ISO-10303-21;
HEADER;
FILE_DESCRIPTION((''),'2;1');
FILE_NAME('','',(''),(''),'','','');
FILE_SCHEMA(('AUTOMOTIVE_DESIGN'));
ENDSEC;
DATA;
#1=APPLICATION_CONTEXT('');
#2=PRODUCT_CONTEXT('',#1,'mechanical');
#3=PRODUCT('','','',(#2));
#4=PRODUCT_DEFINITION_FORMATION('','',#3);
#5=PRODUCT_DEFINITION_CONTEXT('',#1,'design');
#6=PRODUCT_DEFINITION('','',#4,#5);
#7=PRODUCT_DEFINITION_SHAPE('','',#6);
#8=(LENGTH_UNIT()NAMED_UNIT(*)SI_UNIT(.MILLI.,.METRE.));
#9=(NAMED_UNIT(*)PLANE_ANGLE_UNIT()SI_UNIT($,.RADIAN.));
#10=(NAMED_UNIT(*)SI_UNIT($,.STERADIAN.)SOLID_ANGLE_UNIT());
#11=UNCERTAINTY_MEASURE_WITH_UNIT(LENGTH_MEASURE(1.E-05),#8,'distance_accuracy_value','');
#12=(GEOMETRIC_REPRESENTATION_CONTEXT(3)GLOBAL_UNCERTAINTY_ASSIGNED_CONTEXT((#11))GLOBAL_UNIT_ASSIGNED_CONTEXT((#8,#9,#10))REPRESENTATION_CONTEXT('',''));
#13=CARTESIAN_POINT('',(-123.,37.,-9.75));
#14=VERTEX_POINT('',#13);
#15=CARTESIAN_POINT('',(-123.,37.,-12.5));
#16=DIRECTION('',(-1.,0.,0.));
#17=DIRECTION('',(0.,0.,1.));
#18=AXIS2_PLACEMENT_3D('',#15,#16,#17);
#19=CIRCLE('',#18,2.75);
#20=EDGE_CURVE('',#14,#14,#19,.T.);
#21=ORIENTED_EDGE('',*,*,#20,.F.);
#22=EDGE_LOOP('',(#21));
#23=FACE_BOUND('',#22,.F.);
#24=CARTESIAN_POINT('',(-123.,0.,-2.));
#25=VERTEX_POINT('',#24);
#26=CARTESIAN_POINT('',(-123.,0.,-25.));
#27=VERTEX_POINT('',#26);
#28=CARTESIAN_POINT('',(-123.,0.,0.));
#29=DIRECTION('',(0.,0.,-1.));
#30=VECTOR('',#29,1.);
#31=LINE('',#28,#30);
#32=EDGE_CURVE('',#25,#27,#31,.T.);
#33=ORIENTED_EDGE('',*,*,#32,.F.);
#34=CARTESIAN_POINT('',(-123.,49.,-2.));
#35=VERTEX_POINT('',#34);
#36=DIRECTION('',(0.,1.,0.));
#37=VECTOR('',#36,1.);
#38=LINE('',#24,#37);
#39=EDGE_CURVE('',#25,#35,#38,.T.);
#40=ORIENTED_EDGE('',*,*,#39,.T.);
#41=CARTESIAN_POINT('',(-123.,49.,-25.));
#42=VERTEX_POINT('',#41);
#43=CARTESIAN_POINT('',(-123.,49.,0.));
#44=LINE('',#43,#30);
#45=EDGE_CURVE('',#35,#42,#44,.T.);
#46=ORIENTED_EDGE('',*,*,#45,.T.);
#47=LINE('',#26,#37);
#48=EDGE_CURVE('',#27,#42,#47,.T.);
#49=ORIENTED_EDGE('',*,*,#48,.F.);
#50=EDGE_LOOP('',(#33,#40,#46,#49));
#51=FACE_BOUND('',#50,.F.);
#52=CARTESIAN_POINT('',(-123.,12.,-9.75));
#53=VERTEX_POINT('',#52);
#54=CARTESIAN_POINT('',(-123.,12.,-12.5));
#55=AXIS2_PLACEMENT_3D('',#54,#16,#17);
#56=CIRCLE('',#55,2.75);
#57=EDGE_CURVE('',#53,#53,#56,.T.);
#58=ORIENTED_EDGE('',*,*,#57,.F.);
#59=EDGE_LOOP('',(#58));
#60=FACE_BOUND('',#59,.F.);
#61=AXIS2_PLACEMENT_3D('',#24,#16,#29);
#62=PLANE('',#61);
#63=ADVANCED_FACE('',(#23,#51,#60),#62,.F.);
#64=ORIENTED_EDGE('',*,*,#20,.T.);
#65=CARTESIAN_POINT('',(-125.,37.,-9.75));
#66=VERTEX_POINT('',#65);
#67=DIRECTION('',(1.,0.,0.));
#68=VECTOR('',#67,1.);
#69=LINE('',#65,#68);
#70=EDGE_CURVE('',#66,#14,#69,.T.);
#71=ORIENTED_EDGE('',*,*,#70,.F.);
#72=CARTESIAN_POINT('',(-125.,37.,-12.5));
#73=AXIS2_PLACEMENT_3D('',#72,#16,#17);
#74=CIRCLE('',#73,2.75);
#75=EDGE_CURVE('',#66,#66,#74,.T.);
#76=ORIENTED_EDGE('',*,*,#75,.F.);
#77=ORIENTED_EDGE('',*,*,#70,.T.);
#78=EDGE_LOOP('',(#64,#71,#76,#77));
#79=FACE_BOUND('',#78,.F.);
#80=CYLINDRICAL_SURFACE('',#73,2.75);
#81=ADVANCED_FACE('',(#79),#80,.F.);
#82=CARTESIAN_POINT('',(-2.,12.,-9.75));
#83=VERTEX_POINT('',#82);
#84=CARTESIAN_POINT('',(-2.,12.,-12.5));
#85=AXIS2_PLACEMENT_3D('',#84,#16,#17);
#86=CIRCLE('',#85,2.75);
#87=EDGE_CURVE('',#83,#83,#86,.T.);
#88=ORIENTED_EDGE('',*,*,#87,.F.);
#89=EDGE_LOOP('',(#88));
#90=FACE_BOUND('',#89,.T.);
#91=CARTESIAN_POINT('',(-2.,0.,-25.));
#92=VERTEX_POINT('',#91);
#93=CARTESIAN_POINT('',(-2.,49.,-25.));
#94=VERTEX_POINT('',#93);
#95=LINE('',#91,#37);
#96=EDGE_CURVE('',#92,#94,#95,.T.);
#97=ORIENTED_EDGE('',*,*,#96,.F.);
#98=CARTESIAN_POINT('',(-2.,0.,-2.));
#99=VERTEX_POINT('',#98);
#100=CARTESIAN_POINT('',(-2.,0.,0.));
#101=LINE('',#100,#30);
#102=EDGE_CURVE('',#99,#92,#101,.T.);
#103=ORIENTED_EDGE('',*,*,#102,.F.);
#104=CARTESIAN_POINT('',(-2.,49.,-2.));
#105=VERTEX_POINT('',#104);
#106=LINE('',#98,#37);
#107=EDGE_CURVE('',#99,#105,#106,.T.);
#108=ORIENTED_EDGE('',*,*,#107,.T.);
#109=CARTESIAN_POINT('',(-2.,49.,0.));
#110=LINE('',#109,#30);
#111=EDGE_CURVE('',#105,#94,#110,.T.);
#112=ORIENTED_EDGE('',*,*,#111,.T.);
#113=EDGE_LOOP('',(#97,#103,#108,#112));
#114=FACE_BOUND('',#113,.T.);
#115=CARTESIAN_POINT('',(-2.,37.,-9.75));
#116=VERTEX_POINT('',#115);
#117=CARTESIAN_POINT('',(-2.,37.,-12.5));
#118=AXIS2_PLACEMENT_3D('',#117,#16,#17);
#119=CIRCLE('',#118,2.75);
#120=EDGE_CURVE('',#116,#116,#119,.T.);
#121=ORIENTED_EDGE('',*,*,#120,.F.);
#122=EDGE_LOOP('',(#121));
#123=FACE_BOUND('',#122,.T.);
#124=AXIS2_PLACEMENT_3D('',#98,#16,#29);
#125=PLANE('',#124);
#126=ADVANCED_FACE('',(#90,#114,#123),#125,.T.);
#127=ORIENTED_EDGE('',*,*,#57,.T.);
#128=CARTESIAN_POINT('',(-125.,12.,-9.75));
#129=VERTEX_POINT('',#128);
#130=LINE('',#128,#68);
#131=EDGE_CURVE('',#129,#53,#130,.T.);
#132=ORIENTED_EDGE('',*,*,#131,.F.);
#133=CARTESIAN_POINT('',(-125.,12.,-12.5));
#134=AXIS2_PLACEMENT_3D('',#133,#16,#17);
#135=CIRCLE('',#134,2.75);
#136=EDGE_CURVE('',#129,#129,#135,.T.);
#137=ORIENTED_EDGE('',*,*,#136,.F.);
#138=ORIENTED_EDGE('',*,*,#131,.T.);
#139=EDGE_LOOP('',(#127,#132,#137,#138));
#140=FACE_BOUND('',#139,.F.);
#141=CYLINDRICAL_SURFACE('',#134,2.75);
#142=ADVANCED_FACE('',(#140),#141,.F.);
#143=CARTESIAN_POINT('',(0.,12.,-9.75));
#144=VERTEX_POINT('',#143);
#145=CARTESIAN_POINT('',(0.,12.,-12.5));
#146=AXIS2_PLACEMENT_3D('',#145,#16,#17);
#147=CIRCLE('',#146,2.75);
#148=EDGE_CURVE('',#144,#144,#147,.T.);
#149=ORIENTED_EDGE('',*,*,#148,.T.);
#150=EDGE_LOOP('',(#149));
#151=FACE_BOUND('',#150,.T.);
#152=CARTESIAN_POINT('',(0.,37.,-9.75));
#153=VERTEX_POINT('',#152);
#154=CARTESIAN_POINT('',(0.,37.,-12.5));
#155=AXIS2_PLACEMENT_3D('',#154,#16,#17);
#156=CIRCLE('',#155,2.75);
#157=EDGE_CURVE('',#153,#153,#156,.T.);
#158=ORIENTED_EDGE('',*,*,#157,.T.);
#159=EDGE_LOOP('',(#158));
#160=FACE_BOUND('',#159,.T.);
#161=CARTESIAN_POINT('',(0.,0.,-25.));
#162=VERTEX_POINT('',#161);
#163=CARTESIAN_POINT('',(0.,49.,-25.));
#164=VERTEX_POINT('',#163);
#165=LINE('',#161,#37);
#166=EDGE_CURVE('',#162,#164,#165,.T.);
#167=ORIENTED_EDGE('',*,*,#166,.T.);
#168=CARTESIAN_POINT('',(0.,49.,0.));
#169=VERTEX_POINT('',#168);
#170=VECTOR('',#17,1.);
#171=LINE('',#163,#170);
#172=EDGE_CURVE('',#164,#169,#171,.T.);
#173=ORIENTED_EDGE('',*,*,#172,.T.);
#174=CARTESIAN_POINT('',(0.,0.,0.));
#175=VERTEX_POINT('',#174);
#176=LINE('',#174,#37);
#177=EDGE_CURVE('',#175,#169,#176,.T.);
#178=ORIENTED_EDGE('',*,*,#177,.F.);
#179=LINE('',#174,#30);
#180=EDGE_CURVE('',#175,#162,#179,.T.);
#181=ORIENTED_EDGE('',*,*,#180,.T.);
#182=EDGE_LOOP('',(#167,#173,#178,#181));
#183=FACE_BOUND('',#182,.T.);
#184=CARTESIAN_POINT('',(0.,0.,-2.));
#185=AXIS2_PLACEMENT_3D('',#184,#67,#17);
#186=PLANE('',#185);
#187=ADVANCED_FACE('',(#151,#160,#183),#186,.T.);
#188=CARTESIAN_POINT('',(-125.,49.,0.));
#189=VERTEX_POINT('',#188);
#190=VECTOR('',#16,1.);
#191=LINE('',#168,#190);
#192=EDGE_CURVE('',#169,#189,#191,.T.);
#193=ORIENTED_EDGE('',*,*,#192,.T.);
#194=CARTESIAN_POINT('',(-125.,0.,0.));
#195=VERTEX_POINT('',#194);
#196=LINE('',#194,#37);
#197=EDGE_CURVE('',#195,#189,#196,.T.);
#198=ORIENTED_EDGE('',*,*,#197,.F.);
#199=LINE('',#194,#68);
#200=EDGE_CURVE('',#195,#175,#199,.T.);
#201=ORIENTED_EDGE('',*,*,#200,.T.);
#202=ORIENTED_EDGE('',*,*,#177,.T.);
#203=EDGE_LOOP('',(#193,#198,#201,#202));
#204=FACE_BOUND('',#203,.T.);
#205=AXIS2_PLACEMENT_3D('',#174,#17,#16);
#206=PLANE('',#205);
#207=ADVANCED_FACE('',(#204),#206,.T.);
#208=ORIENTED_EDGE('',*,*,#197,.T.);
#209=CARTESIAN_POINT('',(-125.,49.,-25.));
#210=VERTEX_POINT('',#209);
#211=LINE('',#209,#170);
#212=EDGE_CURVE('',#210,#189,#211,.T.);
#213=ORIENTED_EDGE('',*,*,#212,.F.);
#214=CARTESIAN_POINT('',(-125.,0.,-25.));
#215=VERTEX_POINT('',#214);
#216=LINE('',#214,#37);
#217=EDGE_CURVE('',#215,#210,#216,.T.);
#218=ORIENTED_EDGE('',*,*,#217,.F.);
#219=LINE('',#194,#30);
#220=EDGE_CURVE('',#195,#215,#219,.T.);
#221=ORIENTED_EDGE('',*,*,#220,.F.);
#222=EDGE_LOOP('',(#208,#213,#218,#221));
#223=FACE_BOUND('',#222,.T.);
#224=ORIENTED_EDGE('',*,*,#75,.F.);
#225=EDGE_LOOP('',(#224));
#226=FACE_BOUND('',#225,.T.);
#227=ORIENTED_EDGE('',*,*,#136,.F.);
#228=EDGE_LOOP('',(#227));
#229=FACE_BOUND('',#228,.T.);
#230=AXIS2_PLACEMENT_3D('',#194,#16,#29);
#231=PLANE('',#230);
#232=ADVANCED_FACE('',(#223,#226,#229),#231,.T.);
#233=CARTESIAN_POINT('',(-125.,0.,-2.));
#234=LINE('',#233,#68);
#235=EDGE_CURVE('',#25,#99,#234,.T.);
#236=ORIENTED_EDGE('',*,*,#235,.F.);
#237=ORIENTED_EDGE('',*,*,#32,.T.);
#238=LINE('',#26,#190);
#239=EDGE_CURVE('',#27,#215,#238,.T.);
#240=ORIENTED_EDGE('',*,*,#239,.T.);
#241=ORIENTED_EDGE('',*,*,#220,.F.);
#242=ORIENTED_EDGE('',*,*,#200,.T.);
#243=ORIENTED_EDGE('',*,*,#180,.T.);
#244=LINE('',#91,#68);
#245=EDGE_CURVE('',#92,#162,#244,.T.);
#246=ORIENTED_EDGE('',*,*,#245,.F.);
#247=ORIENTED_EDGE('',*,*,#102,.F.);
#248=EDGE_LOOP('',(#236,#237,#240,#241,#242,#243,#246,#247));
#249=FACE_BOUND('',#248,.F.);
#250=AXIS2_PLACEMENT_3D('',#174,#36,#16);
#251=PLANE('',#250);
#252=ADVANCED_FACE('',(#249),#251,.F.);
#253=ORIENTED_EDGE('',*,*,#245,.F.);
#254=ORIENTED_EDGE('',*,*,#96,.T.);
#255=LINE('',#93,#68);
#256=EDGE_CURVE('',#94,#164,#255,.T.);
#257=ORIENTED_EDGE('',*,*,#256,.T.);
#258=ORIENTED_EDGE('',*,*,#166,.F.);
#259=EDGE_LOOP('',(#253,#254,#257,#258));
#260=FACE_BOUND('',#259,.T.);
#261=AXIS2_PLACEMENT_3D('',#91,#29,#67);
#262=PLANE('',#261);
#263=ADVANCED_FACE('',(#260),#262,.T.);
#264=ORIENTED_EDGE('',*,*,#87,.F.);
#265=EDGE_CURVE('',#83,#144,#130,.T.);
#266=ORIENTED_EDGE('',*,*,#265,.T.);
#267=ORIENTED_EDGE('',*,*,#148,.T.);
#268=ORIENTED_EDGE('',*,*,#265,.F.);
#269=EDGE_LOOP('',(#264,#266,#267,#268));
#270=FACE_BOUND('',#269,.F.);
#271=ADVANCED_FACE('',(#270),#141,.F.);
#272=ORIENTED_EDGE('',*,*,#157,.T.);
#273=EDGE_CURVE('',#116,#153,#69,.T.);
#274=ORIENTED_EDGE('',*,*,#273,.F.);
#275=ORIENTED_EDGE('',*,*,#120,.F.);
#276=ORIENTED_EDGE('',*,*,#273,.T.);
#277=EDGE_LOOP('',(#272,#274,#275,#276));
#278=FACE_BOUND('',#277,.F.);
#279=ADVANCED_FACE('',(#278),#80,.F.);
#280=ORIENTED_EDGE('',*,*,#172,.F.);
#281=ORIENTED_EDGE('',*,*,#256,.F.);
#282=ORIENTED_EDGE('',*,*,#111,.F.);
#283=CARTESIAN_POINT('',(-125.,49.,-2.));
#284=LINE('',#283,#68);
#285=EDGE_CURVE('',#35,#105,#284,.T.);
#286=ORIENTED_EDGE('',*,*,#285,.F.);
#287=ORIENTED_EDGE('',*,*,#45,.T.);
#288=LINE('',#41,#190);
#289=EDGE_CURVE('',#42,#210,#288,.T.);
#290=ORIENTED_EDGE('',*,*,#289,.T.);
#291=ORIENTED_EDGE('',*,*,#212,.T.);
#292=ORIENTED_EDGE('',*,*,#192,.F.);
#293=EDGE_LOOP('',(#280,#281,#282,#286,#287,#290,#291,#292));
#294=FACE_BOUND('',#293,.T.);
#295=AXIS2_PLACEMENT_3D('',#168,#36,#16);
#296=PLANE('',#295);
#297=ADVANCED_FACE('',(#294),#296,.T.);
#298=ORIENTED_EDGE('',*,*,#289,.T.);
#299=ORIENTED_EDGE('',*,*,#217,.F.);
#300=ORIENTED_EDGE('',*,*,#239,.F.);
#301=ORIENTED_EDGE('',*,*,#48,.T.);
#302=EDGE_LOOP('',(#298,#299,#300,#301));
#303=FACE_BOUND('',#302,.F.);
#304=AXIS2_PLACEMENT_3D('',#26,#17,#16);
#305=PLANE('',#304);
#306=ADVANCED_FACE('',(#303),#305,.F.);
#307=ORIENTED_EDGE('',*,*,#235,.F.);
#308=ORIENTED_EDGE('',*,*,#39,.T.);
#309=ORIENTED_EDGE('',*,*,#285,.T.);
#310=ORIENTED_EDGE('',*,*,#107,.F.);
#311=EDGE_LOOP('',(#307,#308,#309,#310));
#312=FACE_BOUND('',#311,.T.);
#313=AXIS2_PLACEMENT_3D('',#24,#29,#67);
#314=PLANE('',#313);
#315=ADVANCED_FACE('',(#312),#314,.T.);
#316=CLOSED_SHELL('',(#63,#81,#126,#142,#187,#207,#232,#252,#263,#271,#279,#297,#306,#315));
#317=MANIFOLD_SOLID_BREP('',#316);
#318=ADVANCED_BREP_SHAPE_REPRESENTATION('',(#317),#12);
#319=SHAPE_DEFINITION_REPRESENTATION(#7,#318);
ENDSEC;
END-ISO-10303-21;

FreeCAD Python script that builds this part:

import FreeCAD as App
import Part
import Sketcher

V = App.Vector
Q = App.Units.Quantity


def add_polygon(sketch, points):
    """Adds a closed chain of lines whose ends are joined by coincident constraints."""
    first, n = sketch.GeometryCount, len(points)
    for a, b in zip(points, points[1:] + points[:1]):
        sketch.addGeometry(Part.LineSegment(App.Vector(*a, 0), App.Vector(*b, 0)), False)
    for i in range(n):
        sketch.addConstraint(Sketcher.Constraint("Coincident", first + i, 2, first + (i + 1) % n, 1))

doc = App.newDocument("Part")
body = doc.addObject("PartDesign::Body", "Body")

sketch1 = body.newObject("Sketcher::SketchObject", "Sketch")
sketch1.AttachmentSupport = (doc.getObject("XZ_Plane"), [""])
sketch1.MapMode = "FlatFace"
add_polygon(sketch1, [(0, 0), (0, -25), (-2, -25), (-2, -2), (-123, -2), (-123, -25), (-125, -25), (-125, 0)])
sketch1.addConstraint(Sketcher.Constraint("Vertical", 0))
sketch1.addConstraint(Sketcher.Constraint("Horizontal", 1))
sketch1.addConstraint(Sketcher.Constraint("Vertical", 2))
sketch1.addConstraint(Sketcher.Constraint("Horizontal", 3))
sketch1.addConstraint(Sketcher.Constraint("Vertical", 4))
sketch1.addConstraint(Sketcher.Constraint("Horizontal", 5))
sketch1.addConstraint(Sketcher.Constraint("Vertical", 6))
sketch1.addConstraint(Sketcher.Constraint("Horizontal", 7))
sketch1.addConstraint(Sketcher.Constraint("Coincident", 7, 2, -1, 1))
sketch1.addConstraint(Sketcher.Constraint("Horizontal", 1, 2, 4, 2))
sketch1.addConstraint(Sketcher.Constraint("Equal", 1, 5))
sketch1.addConstraint(Sketcher.Constraint("DistanceX", 1, 2, 1, 1, Q("2 mm")))
sketch1.addConstraint(Sketcher.Constraint("DistanceX", 7, 1, 7, 2, Q("125 mm")))
sketch1.addConstraint(Sketcher.Constraint("DistanceY", 0, 2, 0, 1, Q("25 mm")))
sketch1.addConstraint(Sketcher.Constraint("DistanceY", 2, 2, -1, 1, Q("2 mm")))
pad1 = body.newObject("PartDesign::Pad", "Pad")
pad1.Profile = sketch1
pad1.Length = 49
pad1.Reversed = True

sketch2 = body.newObject("Sketcher::SketchObject", "Sketch001")
sketch2.AttachmentSupport = (doc.getObject("YZ_Plane"), [""])
sketch2.MapMode = "FlatFace"
sketch2.AttachmentOffset = App.Placement(V(0, 0, -125), App.Rotation())
sketch2.addGeometry(Part.Circle(V(12, -12.5, 0), V(0, 0, 1), 2.8), False)
sketch2.addGeometry(Part.Circle(V(37, -12.5, 0), V(0, 0, 1), 2.8), False)
sketch2.addConstraint(Sketcher.Constraint("Equal", 0, 1))
sketch2.addConstraint(Sketcher.Constraint("Horizontal", 0, 3, 1, 3))
sketch2.addConstraint(Sketcher.Constraint("Diameter", 0, Q("5.5 mm")))
sketch2.addConstraint(Sketcher.Constraint("DistanceX", -1, 1, 0, 3, Q("12 mm")))
sketch2.addConstraint(Sketcher.Constraint("DistanceY", 0, 3, -1, 1, Q("12.5 mm")))
sketch2.addConstraint(Sketcher.Constraint("DistanceX", -1, 1, 1, 3, Q("37 mm")))
pocket1 = body.newObject("PartDesign::Pocket", "Pocket")
pocket1.Profile = sketch2
pocket1.Length = 130
pocket1.Reversed = True

doc.recompute()
